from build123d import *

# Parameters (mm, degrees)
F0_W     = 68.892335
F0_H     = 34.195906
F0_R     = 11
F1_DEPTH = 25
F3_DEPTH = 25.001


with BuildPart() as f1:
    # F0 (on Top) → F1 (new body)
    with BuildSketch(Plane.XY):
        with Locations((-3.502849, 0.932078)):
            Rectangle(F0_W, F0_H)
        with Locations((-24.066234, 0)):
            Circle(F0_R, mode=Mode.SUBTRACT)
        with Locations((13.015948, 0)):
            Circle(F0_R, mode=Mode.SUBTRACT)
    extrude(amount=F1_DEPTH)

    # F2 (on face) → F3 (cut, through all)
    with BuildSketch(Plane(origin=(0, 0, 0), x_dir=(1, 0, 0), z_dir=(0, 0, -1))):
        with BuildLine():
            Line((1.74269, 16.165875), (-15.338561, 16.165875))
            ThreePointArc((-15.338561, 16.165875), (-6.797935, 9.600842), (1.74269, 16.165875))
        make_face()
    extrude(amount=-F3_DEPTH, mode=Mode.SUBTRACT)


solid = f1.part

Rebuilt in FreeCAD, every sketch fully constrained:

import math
import FreeCAD as App
import Part
import Sketcher

V = App.Vector
Q = App.Units.Quantity

doc = App.newDocument("Part")
body = doc.addObject("PartDesign::Body", "Body")

# Sketch on XY plane
sketch1 = body.newObject("Sketcher::SketchObject", "Sketch")
sketch1.AttachmentSupport = (doc.getObject("XY_Plane"), [""])
sketch1.MapMode = "FlatFace"
sketch1.addGeometry([
    Part.LineSegment(V(-38, 18, 0), V(-38, -16, 0)),  # 0
    Part.LineSegment(V(-38, -16, 0), V(31, -16, 0)),  # 1
    Part.LineSegment(V(31, -16, 0), V(31, 18, 0)),  # 2
    Part.LineSegment(V(31, 18, 0), V(-38, 18, 0)),  # 3
    Part.Circle(V(-24, 0, 0), V(0, 0, 1), 11),  # 4
    Part.Circle(V(13, 0, 0), V(0, 0, 1), 11),  # 5
], False)
sketch1.addConstraint([
    Sketcher.Constraint("Coincident", 0, 2, 1, 1),
    Sketcher.Constraint("Coincident", 1, 2, 2, 1),
    Sketcher.Constraint("Coincident", 2, 2, 3, 1),
    Sketcher.Constraint("Coincident", 3, 2, 0, 1),
    Sketcher.Constraint("Vertical", 0),
    Sketcher.Constraint("Horizontal", 1),
    Sketcher.Constraint("Vertical", 2),
    Sketcher.Constraint("Horizontal", 3),
    Sketcher.Constraint("Equal", 4, 5),
    Sketcher.Constraint("PointOnObject", 4, 3, -1),
    Sketcher.Constraint("PointOnObject", 5, 3, -1),
    Sketcher.Constraint("Diameter", 4, Q("22 mm")),
    Sketcher.Constraint("DistanceX", 1, 1, 1, 2, Q("68.892335 mm")),
    Sketcher.Constraint("DistanceY", 0, 2, 0, 1, Q("34.195906 mm")),
    Sketcher.Constraint("DistanceX", -1, 1, 1, 2, Q("30.943319 mm")),
    Sketcher.Constraint("DistanceY", -1, 1, 2, 2, Q("18.030031 mm")),
    Sketcher.Constraint("DistanceX", 5, 3, 1, 2, Q("17.927371 mm")),
    Sketcher.Constraint("DistanceX", 4, 3, -1, 1, Q("24.066234 mm")),
])
pad1 = body.newObject("PartDesign::Pad", "Pad")
pad1.Profile = sketch1
pad1.Length = 25

# Sketch on XY plane
sketch2 = body.newObject("Sketcher::SketchObject", "Sketch001")
sketch2.AttachmentSupport = (doc.getObject("XY_Plane"), [""])
sketch2.MapMode = "FlatFace"
sketch2.addGeometry([
    Part.LineSegment(V(2, -16, 0), V(-15, -16, 0)),
    Part.ArcOfCircle(Part.Circle(V(-7, -18, 0), V(0, 0, 1), 9), math.radians(15), math.radians(165)),
], False)
sketch2.addConstraint([
    Sketcher.Constraint("Coincident", 0, 1, 1, 1),
    Sketcher.Constraint("Coincident", 1, 2, 0, 2),
    Sketcher.Constraint("Horizontal", 0),
    Sketcher.Constraint("Radius", 1, Q("8.83788 mm")),
    Sketcher.Constraint("DistanceX", 0, 2, 0, 1, Q("17.081251 mm")),
    Sketcher.Constraint("DistanceY", 1, 3, -1, 1, Q("18.438722 mm")),
    Sketcher.Constraint("DistanceX", -1, 1, 0, 1, Q("1.74269 mm")),
])
pocket1 = body.newObject("PartDesign::Pocket", "Pocket")
pocket1.Profile = sketch2
pocket1.Type = "ThroughAll"
pocket1.Reversed = True

doc.recompute()
